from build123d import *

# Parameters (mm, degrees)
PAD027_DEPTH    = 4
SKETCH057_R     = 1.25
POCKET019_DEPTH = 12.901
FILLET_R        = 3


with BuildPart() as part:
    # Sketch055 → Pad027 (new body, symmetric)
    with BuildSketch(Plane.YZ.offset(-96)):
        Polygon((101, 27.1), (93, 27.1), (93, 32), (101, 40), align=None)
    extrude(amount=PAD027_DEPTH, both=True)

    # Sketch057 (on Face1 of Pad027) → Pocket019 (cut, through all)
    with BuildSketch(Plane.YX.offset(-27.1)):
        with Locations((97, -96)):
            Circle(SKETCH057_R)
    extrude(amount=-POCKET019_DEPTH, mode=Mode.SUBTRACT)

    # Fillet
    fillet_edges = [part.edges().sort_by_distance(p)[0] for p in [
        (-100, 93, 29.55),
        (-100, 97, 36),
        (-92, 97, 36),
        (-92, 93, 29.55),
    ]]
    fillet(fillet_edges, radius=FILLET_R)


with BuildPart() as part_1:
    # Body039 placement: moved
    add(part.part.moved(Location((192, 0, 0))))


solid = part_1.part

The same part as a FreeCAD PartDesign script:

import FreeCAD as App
import Part
import Sketcher

V = App.Vector
Q = App.Units.Quantity


def edges_at(feature, points):
    """Names of the edges that pass closest to the given points."""
    edges = feature.Shape.Edges
    near = lambda p: min(range(len(edges)), key=lambda i: edges[i].distToShape(Part.Vertex(*p))[0])
    return sorted({f"Edge{near(p) + 1}" for p in points})

doc = App.newDocument("Part")
params = doc.addObject("Spreadsheet::Sheet", "Params")
for row, (alias, value) in enumerate([
    ("sketch1_width", "8 mm"),
    ("sketch1_height", "12.9 mm"),
    ("pad1_length", "8 mm"),
    ("sketch2_diameter", "2.5 mm"),
    ("fillet_radius", "3 mm"),
], start=1):
    params.set(f"A{row}", alias)
    params.set(f"B{row}", "=" + value)
    params.setAlias(f"B{row}", alias)

body = doc.addObject("PartDesign::Body", "Body")

sketch1 = body.newObject("Sketcher::SketchObject", "Sketch")
sketch1.AttachmentSupport = (doc.getObject("YZ_Plane"), [""])
sketch1.MapMode = "FlatFace"
sketch1.AttachmentOffset = App.Placement(V(0, 0, -96), App.Rotation())
sketch1.addGeometry([
    Part.LineSegment(V(93, 27.1, 0), V(101, 27.1, 0)),
    Part.LineSegment(V(101, 27.1, 0), V(101, 40, 0)),
    Part.LineSegment(V(101, 40, 0), V(93, 32, 0)),
    Part.LineSegment(V(93, 32, 0), V(93, 27.1, 0)),
], False)
sketch1.addConstraint([
    Sketcher.Constraint("Coincident", 0, 2, 1, 1),
    Sketcher.Constraint("Coincident", 1, 2, 2, 1),
    Sketcher.Constraint("Coincident", 2, 2, 3, 1),
    Sketcher.Constraint("Coincident", 3, 2, 0, 1),
    Sketcher.Constraint("Horizontal", 0),
    Sketcher.Constraint("Vertical", 1),
    Sketcher.Constraint("Vertical", 3),
    Sketcher.Constraint("DistanceX", 0, 1, 0, 2, 8.0),
    Sketcher.Constraint("Angle", 2, Q("-135 deg")),
    Sketcher.Constraint("DistanceY", 1, 1, 1, 2, 12.9),
    Sketcher.Constraint("DistanceX", -1, 1, 0, 2, 101.0),
    Sketcher.Constraint("DistanceY", -1, 1, 1, 2, 40.0),
])
sketch1.setExpression("Constraints[7]", "Params.sketch1_width")
sketch1.setExpression("Constraints[9]", "Params.sketch1_height")
pad1 = body.newObject("PartDesign::Pad", "Pad")
pad1.Profile = sketch1
pad1.setExpression("Length", "Params.pad1_length")
pad1.Midplane = True

sketch2 = body.newObject("Sketcher::SketchObject", "Sketch001")
sketch2.AttachmentSupport = (doc.getObject("XY_Plane"), [""])
sketch2.MapMode = "FlatFace"
sketch2.AttachmentOffset = App.Placement(V(0, 0, 27.1), App.Rotation())
sketch2.addGeometry(Part.Circle(V(-96, 97, 0), V(0, 0, 1), 1.2), False)
sketch2.addConstraint([
    Sketcher.Constraint("Diameter", 0, 2.5),
    Sketcher.Constraint("DistanceX", 0, 3, -1, 1, 96.0),
    Sketcher.Constraint("DistanceY", -1, 1, 0, 3, 97.0),
])
sketch2.setExpression("Constraints[0]", "Params.sketch2_diameter")
pocket1 = body.newObject("PartDesign::Pocket", "Pocket")
pocket1.Profile = sketch2
pocket1.Type = "ThroughAll"
pocket1.Reversed = True
doc.recompute()

fillet = body.newObject("PartDesign::Fillet", "Fillet")
fillet.Base = (pocket1, edges_at(pocket1, [
    (-100, 93, 29.55),
    (-100, 97, 36),
    (-92, 97, 36),
    (-92, 93, 29.55),
]))
fillet.setExpression("Radius", "Params.fillet_radius")
body2 = doc.addObject("PartDesign::Body", "Body001")
doc.recompute()

body.Placement = App.Placement(V(192, 0, 0), App.Rotation(V(0, 0, 1), 0))
boolean = body2.newObject("PartDesign::Boolean", "Boolean")
boolean.Type = "Fuse"
boolean.addObjects([body])

doc.recompute()
